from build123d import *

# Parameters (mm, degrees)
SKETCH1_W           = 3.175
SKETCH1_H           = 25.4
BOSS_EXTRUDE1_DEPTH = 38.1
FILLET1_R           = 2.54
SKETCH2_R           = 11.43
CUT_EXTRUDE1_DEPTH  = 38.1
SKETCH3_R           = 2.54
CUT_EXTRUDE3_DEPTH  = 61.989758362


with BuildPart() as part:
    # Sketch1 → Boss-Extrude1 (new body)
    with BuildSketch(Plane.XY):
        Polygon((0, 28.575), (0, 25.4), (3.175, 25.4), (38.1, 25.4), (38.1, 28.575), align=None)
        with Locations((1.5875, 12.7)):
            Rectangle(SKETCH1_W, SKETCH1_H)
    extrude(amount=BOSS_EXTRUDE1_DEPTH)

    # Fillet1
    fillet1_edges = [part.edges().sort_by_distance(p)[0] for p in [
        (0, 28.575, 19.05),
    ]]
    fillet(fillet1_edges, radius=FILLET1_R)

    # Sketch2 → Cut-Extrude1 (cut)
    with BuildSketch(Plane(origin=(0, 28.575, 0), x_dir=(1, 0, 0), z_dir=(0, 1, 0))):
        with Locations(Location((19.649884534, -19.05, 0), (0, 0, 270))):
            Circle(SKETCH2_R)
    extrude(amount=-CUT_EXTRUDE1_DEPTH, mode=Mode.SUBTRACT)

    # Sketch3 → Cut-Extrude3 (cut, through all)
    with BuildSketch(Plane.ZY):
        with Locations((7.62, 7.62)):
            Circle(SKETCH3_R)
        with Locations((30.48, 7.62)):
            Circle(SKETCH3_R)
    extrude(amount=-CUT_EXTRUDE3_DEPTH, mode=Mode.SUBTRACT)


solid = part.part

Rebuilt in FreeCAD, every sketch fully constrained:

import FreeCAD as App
import Part
import Sketcher
from FreeCAD import Vector
Q = App.Units.Quantity


def edges_at(feature, points):
    """Names of the edges that pass closest to the given points."""
    edges = feature.Shape.Edges
    near = lambda p: min(range(len(edges)), key=lambda i: edges[i].distToShape(Part.Vertex(*p))[0])
    return sorted({f"Edge{near(p) + 1}" for p in points})

doc = App.newDocument("Part")
body = doc.addObject("PartDesign::Body", "Body")

sketch1 = body.newObject("Sketcher::SketchObject", "Sketch")
sketch1.AttachmentSupport = (doc.getObject("XY_Plane"), [""])
sketch1.MapMode = "FlatFace"
sketch1.addGeometry(Part.LineSegment(Vector(0, 28.6, 0), Vector(0, 0, 0)), False)
sketch1.addGeometry(Part.LineSegment(Vector(0, 0, 0), Vector(3.2, 0, 0)), False)
sketch1.addGeometry(Part.LineSegment(Vector(3.2, 0, 0), Vector(3.2, 25.4, 0)), False)
sketch1.addGeometry(Part.LineSegment(Vector(3.2, 25.4, 0), Vector(38.1, 25.4, 0)), False)
sketch1.addGeometry(Part.LineSegment(Vector(38.1, 25.4, 0), Vector(38.1, 28.6, 0)), False)
sketch1.addGeometry(Part.LineSegment(Vector(38.1, 28.6, 0), Vector(0, 28.6, 0)), False)
sketch1.addConstraint(Sketcher.Constraint("Coincident", 0, 2, 1, 1))
sketch1.addConstraint(Sketcher.Constraint("Coincident", 1, 2, 2, 1))
sketch1.addConstraint(Sketcher.Constraint("Coincident", 2, 2, 3, 1))
sketch1.addConstraint(Sketcher.Constraint("Coincident", 3, 2, 4, 1))
sketch1.addConstraint(Sketcher.Constraint("Coincident", 4, 2, 5, 1))
sketch1.addConstraint(Sketcher.Constraint("Coincident", 5, 2, 0, 1))
sketch1.addConstraint(Sketcher.Constraint("Vertical", 0))
sketch1.addConstraint(Sketcher.Constraint("Horizontal", 1))
sketch1.addConstraint(Sketcher.Constraint("Vertical", 2))
sketch1.addConstraint(Sketcher.Constraint("Horizontal", 3))
sketch1.addConstraint(Sketcher.Constraint("Vertical", 4))
sketch1.addConstraint(Sketcher.Constraint("Horizontal", 5))
sketch1.addConstraint(Sketcher.Constraint("Coincident", 0, 2, -1, 1))
sketch1.addConstraint(Sketcher.Constraint("Equal", 1, 4))
sketch1.addConstraint(Sketcher.Constraint("DistanceY", 2, 1, 2, 2, Q("1 in")))
sketch1.addConstraint(Sketcher.Constraint("DistanceX", 5, 2, 5, 1, Q("1.5 in")))
sketch1.addConstraint(Sketcher.Constraint("DistanceX", 1, 1, 1, 2, Q("0.125 in")))
pad1 = body.newObject("PartDesign::Pad", "Pad")
pad1.Profile = sketch1
pad1.Length = Q("1.5 in")
doc.recompute()

fillet = body.newObject("PartDesign::Fillet", "Fillet")
fillet.Base = (pad1, edges_at(pad1, [(0, 28.575, 19.05)]))
fillet.Radius = Q("0.1 in")

sketch2 = body.newObject("Sketcher::SketchObject", "Sketch001")
sketch2.AttachmentSupport = (doc.getObject("XZ_Plane"), [""])
sketch2.MapMode = "FlatFace"
sketch2.AttachmentOffset = App.Placement(Vector(0, 0, -1.125 * 25.4), App.Rotation())
sketch2.addGeometry(Part.Circle(Vector(20, 19, 0), Vector(0, 0, 1), 11), False)
sketch2.addConstraint(Sketcher.Constraint("Diameter", 0, Q("0.9 in")))
sketch2.addConstraint(Sketcher.Constraint("DistanceY", -1, 1, 0, 3, Q("0.75 in")))
sketch2.addConstraint(Sketcher.Constraint("DistanceX", -1, 1, 0, 3, 19.649885))
pocket1 = body.newObject("PartDesign::Pocket", "Pocket")
pocket1.Profile = sketch2
pocket1.Length = Q("1.5 in")
pocket1.Reversed = True

sketch3 = body.newObject("Sketcher::SketchObject", "Sketch002")
sketch3.AttachmentSupport = (doc.getObject("YZ_Plane"), [""])
sketch3.MapMode = "FlatFace"
sketch3.addGeometry(Part.Circle(Vector(7.6, 7.6, 0), Vector(0, 0, 1), 2.5), False)
sketch3.addGeometry(Part.Circle(Vector(7.6, 30.5, 0), Vector(0, 0, 1), 2.5), False)
sketch3.addConstraint(Sketcher.Constraint("Equal", 0, 1))
sketch3.addConstraint(Sketcher.Constraint("Vertical", 0, 3, 1, 3))
sketch3.addConstraint(Sketcher.Constraint("Diameter", 0, Q("0.2 in")))
sketch3.addConstraint(Sketcher.Constraint("DistanceX", -1, 1, 0, 3, Q("0.3 in")))
sketch3.addConstraint(Sketcher.Constraint("DistanceY", -1, 1, 0, 3, Q("0.3 in")))
sketch3.addConstraint(Sketcher.Constraint("DistanceY", -1, 1, 1, 3, Q("1.2 in")))
pocket2 = body.newObject("PartDesign::Pocket", "Pocket001")
pocket2.Profile = sketch3
pocket2.Type = "ThroughAll"
pocket2.Reversed = True

doc.recompute()
